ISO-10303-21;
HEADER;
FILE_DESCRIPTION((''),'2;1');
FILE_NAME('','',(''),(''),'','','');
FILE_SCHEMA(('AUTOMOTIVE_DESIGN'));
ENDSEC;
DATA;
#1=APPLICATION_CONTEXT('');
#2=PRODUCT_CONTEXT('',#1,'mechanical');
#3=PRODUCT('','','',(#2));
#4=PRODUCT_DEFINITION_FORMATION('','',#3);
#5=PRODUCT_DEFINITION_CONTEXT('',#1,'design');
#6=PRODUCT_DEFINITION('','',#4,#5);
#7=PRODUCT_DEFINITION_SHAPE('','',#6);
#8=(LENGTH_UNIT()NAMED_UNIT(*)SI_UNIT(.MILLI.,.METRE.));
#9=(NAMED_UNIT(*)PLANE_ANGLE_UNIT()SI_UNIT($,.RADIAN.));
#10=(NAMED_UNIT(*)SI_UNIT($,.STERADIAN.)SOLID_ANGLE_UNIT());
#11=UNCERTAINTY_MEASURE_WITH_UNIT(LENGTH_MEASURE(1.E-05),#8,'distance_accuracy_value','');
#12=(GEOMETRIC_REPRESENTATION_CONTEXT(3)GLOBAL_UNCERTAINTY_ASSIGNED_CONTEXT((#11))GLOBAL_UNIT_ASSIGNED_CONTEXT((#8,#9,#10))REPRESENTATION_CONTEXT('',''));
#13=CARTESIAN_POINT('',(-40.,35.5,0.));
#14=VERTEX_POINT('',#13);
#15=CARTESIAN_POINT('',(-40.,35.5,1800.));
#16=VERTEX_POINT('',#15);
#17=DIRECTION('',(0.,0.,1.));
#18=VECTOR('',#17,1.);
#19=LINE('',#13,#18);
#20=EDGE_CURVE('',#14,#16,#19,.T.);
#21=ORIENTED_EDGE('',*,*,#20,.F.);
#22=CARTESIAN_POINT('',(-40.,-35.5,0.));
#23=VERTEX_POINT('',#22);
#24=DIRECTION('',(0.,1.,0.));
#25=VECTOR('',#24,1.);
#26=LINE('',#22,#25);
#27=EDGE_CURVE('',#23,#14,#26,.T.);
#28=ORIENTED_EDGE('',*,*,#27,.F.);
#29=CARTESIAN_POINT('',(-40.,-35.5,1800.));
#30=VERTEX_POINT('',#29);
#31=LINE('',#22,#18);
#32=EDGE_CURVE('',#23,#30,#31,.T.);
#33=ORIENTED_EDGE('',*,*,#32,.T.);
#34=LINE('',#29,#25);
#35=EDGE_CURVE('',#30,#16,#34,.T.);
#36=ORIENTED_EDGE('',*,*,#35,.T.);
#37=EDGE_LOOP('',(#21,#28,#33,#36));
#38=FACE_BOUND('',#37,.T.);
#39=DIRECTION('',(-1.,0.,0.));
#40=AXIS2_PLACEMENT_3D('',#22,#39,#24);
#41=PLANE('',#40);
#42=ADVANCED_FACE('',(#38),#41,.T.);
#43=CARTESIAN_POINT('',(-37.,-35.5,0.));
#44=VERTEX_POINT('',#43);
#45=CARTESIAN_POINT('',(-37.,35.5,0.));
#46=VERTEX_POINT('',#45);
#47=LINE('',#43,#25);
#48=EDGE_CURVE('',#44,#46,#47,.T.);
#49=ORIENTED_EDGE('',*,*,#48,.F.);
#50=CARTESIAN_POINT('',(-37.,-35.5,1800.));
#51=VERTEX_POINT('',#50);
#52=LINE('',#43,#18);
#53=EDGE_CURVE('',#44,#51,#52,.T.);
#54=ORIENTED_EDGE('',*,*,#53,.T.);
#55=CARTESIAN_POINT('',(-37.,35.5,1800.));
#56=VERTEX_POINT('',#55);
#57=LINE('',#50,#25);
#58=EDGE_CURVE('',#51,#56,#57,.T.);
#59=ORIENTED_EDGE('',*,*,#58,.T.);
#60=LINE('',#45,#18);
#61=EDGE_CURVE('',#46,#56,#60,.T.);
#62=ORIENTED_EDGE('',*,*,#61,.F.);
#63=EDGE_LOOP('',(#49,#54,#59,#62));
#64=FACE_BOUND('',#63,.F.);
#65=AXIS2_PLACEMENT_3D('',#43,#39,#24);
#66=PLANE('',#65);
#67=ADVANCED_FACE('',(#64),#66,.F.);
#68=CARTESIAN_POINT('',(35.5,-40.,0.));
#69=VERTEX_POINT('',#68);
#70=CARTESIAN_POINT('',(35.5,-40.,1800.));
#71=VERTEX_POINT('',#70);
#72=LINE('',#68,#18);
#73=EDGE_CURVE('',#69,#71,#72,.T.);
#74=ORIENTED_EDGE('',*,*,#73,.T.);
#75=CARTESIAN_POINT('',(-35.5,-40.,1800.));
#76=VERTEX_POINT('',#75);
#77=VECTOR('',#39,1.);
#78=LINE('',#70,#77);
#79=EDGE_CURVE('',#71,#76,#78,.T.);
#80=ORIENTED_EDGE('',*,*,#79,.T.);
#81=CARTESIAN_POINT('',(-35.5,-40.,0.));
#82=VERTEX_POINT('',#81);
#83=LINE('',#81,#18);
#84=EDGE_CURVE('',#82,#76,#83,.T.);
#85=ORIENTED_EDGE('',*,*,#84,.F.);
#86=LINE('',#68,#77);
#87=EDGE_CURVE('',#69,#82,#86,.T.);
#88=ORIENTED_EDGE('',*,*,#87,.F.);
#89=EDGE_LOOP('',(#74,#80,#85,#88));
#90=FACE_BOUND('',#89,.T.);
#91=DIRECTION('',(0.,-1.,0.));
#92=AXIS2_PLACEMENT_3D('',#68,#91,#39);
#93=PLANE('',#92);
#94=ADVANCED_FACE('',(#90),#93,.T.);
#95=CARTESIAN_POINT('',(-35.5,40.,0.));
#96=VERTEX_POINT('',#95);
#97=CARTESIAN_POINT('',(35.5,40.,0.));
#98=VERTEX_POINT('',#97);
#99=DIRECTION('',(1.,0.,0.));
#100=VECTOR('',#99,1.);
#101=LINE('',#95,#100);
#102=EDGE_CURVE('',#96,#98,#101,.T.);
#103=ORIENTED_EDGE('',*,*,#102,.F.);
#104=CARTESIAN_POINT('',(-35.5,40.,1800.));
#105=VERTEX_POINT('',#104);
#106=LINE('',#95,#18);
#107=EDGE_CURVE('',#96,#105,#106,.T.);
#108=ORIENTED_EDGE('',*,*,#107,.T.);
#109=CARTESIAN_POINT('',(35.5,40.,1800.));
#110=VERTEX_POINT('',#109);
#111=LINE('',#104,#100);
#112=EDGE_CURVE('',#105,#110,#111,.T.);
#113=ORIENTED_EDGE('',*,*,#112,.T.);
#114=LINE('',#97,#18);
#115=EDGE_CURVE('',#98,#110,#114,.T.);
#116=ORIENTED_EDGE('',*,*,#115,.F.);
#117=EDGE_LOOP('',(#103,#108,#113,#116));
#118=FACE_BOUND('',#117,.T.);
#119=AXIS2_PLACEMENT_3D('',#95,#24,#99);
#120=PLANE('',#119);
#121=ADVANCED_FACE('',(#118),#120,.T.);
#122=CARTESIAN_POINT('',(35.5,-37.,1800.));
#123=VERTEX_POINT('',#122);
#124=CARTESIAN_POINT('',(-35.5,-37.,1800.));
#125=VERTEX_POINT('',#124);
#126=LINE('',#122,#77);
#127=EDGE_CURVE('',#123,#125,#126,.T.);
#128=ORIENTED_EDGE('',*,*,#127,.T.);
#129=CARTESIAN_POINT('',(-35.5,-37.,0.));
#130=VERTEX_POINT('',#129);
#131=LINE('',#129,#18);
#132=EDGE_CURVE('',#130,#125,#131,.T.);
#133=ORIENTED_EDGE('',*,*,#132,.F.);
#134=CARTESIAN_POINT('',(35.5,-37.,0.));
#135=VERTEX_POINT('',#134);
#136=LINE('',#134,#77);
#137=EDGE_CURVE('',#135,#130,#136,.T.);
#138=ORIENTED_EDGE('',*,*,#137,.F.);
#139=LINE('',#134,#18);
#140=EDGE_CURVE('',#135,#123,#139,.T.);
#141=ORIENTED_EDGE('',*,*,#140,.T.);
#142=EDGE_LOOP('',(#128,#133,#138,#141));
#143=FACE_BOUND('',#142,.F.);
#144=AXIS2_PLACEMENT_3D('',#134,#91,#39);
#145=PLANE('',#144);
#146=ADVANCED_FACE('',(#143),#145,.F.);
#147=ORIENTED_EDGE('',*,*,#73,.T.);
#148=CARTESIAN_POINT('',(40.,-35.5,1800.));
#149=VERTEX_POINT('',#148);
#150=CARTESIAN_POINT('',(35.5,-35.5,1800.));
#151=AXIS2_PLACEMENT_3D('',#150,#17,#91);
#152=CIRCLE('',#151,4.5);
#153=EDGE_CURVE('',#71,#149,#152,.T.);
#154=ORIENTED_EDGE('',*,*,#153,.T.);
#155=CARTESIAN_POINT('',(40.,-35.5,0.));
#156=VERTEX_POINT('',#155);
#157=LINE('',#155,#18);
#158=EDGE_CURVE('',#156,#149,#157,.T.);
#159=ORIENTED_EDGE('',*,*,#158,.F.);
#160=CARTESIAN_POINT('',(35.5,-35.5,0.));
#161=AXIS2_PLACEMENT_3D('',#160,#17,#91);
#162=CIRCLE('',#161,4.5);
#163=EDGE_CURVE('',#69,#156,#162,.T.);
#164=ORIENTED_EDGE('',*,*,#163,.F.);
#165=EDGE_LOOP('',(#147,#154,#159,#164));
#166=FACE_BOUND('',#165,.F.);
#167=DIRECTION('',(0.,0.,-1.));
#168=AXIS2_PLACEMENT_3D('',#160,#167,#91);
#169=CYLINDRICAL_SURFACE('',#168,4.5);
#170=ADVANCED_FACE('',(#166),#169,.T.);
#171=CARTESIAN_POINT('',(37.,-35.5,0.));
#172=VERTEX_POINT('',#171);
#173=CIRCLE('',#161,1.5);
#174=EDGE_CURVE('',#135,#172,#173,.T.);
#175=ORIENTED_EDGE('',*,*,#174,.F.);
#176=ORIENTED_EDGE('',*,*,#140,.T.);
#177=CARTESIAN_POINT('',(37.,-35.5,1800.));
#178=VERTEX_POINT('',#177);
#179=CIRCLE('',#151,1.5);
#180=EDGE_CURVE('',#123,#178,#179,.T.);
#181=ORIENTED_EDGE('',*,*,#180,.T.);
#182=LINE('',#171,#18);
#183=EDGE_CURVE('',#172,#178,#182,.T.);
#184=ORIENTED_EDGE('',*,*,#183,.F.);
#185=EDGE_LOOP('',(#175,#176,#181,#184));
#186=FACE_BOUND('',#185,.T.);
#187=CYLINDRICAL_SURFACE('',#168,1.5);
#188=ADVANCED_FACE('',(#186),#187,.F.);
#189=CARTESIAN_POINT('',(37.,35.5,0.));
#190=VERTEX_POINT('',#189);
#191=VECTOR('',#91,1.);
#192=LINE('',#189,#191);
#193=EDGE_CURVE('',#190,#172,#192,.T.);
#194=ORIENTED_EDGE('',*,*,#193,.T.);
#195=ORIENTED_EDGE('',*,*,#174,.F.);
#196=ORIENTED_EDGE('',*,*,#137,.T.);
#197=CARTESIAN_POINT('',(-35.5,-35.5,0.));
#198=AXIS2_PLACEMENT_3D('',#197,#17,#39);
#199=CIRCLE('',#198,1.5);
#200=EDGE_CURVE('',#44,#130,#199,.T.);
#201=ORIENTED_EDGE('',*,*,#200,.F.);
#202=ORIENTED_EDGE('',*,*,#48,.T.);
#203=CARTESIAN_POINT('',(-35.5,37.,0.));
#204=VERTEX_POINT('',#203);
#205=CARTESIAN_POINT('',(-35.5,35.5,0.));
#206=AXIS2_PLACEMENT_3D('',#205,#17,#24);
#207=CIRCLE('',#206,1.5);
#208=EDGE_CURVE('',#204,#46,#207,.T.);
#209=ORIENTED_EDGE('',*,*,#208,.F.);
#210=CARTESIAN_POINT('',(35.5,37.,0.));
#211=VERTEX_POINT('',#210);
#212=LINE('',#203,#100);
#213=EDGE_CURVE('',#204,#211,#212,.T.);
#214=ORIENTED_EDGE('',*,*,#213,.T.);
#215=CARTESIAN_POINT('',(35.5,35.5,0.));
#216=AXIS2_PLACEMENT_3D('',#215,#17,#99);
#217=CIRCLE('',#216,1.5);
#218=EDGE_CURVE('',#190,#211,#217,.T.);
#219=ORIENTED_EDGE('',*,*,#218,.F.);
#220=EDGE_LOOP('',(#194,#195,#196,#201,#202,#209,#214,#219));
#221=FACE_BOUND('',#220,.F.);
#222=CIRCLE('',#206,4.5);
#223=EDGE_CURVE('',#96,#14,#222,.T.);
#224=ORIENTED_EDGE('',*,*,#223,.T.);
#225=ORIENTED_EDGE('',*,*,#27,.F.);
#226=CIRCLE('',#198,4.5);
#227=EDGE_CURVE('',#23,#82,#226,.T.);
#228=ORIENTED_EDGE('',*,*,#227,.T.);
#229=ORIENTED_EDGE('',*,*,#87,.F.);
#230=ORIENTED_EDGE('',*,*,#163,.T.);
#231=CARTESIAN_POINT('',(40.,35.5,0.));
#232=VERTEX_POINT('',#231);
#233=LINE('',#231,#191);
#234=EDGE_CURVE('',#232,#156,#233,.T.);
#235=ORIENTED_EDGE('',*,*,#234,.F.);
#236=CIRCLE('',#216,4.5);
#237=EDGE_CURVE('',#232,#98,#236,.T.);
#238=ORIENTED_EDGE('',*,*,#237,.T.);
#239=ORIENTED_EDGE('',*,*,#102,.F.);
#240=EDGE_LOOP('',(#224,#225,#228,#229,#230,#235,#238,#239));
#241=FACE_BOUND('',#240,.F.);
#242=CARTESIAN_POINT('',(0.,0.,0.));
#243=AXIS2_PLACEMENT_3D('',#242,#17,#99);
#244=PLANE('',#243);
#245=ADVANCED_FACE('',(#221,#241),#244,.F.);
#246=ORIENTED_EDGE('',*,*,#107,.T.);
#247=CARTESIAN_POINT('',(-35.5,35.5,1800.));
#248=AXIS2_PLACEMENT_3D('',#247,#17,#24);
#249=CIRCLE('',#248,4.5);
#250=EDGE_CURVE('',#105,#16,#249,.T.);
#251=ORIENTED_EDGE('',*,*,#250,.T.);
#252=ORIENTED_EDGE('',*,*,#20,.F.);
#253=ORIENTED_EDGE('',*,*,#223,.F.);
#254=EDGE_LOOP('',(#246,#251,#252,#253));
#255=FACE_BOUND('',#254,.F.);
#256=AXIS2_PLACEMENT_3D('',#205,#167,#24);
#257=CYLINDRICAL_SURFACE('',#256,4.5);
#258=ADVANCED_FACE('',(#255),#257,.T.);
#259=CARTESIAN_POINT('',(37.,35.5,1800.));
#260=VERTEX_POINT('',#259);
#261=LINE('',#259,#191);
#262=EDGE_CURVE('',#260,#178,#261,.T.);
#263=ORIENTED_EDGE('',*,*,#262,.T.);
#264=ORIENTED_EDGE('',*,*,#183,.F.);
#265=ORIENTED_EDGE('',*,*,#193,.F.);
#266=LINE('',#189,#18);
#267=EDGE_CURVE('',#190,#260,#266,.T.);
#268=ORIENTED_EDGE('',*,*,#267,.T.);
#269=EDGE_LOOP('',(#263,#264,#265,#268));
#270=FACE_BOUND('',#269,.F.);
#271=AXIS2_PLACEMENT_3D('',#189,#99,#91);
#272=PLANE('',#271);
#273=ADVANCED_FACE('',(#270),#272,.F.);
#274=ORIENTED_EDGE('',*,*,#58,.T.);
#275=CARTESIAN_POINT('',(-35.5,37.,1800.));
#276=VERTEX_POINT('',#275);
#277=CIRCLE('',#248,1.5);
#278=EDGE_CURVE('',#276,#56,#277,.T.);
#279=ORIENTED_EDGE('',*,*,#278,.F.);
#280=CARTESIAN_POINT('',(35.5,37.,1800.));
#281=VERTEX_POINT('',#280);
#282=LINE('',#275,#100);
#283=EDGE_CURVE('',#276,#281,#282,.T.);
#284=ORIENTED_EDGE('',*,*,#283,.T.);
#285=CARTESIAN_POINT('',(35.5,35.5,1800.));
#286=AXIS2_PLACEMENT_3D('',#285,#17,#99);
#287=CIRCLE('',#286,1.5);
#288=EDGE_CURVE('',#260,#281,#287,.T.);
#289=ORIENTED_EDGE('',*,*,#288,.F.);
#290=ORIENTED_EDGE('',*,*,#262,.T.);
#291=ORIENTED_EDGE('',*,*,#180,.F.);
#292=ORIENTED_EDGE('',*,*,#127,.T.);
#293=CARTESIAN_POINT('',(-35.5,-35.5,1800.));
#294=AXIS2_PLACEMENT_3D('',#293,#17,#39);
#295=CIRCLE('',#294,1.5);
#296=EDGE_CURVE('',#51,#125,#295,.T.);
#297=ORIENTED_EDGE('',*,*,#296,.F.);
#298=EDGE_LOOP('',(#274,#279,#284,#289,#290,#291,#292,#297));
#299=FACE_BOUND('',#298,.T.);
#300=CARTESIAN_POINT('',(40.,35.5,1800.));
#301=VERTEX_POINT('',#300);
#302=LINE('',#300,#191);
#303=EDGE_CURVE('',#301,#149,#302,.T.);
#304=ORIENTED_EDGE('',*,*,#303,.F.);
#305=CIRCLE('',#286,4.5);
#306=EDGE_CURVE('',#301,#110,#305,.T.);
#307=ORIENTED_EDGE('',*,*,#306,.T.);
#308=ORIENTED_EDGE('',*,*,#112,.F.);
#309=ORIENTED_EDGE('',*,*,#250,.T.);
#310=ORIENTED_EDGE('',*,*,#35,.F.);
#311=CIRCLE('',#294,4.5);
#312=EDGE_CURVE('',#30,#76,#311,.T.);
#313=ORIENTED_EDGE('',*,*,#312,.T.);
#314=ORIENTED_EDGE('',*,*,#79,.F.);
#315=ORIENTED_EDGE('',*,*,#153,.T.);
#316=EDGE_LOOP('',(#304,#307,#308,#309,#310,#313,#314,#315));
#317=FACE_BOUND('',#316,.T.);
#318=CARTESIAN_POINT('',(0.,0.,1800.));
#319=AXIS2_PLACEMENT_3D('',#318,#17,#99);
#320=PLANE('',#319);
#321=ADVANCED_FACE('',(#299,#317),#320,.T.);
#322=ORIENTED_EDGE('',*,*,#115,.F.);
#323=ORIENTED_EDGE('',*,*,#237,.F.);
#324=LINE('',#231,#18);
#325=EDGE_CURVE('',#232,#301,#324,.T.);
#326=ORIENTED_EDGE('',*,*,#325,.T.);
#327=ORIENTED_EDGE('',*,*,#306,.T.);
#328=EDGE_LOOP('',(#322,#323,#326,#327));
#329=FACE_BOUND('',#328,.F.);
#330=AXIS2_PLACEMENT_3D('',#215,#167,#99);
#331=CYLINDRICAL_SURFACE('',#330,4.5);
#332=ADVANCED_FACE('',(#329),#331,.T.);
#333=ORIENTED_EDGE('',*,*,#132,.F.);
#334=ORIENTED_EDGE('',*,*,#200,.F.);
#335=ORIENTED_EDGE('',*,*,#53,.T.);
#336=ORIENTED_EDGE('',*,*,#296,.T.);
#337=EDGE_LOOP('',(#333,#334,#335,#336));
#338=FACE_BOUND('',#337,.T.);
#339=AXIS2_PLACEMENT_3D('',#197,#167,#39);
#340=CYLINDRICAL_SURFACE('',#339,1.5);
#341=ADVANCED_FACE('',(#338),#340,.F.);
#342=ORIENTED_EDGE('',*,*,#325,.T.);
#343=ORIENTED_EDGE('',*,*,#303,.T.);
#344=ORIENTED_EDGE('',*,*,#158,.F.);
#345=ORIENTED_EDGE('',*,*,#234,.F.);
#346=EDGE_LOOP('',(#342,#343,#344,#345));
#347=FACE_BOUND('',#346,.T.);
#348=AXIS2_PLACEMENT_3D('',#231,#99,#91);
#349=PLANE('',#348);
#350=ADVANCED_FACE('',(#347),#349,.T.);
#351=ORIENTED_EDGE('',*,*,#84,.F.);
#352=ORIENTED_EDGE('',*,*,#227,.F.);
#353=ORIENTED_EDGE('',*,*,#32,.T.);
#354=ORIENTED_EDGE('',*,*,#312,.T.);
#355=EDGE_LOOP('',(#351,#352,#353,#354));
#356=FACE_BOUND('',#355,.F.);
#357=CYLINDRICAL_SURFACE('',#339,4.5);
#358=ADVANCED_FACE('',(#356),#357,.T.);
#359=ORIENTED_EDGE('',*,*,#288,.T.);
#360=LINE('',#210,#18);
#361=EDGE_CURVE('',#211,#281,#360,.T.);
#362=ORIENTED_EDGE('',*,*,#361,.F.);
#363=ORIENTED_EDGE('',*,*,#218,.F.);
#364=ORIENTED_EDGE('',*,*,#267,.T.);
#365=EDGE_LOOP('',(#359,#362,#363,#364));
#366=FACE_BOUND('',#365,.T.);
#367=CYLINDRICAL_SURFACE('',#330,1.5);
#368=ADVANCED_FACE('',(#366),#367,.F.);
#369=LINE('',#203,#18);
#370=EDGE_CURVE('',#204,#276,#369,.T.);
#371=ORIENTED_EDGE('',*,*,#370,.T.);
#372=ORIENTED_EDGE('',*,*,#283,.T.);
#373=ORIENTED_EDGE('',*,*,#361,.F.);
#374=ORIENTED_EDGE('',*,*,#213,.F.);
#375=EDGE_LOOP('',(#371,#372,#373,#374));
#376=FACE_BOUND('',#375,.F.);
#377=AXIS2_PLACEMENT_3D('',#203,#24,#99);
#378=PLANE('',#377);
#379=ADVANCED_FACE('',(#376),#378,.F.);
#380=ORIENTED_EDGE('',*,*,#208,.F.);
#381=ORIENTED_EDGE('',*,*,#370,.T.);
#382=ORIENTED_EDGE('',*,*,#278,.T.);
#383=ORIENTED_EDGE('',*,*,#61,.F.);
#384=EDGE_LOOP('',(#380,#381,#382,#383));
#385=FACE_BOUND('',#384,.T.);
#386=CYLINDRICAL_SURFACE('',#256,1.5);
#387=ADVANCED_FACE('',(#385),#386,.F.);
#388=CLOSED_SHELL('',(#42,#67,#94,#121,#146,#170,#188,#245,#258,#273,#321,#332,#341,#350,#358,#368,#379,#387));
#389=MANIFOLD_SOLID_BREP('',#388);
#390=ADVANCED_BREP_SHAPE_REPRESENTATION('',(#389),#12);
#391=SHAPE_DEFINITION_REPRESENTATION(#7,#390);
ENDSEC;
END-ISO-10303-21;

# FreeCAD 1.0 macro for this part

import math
import FreeCAD as App
import Part
import Sketcher
from FreeCAD import Vector

doc = App.newDocument("Part")
body = doc.addObject("PartDesign::Body", "Body")

# Sketch on XY plane
sketch1 = body.newObject("Sketcher::SketchObject", "Sketch")
sketch1.AttachmentSupport = (doc.getObject("XY_Plane"), [""])
sketch1.MapMode = "FlatFace"
sketch1.addGeometry(Part.LineSegment(Vector(-40, 35.5, 0), Vector(-40, -35.5, 0)), False)
sketch1.addGeometry(Part.ArcOfCircle(Part.Circle(Vector(-35.5, -35.5, 0), Vector(0, 0, 1), 4.5), math.radians(180), math.radians(270)), False)
sketch1.addGeometry(Part.LineSegment(Vector(-35.5, -40, 0), Vector(35.5, -40, 0)), False)
sketch1.addGeometry(Part.ArcOfCircle(Part.Circle(Vector(35.5, -35.5, 0), Vector(0, 0, 1), 4.5), math.radians(-90), math.radians(0)), False)
sketch1.addGeometry(Part.LineSegment(Vector(40, -35.5, 0), Vector(40, 35.5, 0)), False)
sketch1.addGeometry(Part.ArcOfCircle(Part.Circle(Vector(35.5, 35.5, 0), Vector(0, 0, 1), 4.5), math.radians(0), math.radians(90)), False)
sketch1.addGeometry(Part.LineSegment(Vector(35.5, 40, 0), Vector(-35.5, 40, 0)), False)
sketch1.addGeometry(Part.ArcOfCircle(Part.Circle(Vector(-35.5, 35.5, 0), Vector(0, 0, 1), 4.5), math.radians(90), math.radians(180)), False)
sketch1.addGeometry(Part.ArcOfCircle(Part.Circle(Vector(-35.5, 35.5, 0), Vector(0, 0, 1), 1.5), math.radians(90), math.radians(180)), False)
sketch1.addGeometry(Part.LineSegment(Vector(-35.5, 37, 0), Vector(35.5, 37, 0)), False)
sketch1.addGeometry(Part.ArcOfCircle(Part.Circle(Vector(35.5, 35.5, 0), Vector(0, 0, 1), 1.5), math.radians(0), math.radians(90)), False)
sketch1.addGeometry(Part.LineSegment(Vector(37, 35.5, 0), Vector(37, -35.5, 0)), False)
sketch1.addGeometry(Part.ArcOfCircle(Part.Circle(Vector(35.5, -35.5, 0), Vector(0, 0, 1), 1.5), math.radians(-90), math.radians(0)), False)
sketch1.addGeometry(Part.LineSegment(Vector(35.5, -37, 0), Vector(-35.5, -37, 0)), False)
sketch1.addGeometry(Part.ArcOfCircle(Part.Circle(Vector(-35.5, -35.5, 0), Vector(0, 0, 1), 1.5), math.radians(180), math.radians(270)), False)
sketch1.addGeometry(Part.LineSegment(Vector(-37, -35.5, 0), Vector(-37, 35.5, 0)), False)
sketch1.addConstraint(Sketcher.Constraint("Tangent", 0, 2, 1, 1))
sketch1.addConstraint(Sketcher.Constraint("Tangent", 1, 2, 2, 1))
sketch1.addConstraint(Sketcher.Constraint("Tangent", 2, 2, 3, 1))
sketch1.addConstraint(Sketcher.Constraint("Tangent", 3, 2, 4, 1))
sketch1.addConstraint(Sketcher.Constraint("Tangent", 4, 2, 5, 1))
sketch1.addConstraint(Sketcher.Constraint("Tangent", 5, 2, 6, 1))
sketch1.addConstraint(Sketcher.Constraint("Tangent", 6, 2, 7, 1))
sketch1.addConstraint(Sketcher.Constraint("Tangent", 7, 2, 0, 1))
sketch1.addConstraint(Sketcher.Constraint("Tangent", 8, 1, 9, 1))
sketch1.addConstraint(Sketcher.Constraint("Tangent", 9, 2, 10, 2))
sketch1.addConstraint(Sketcher.Constraint("Tangent", 10, 1, 11, 1))
sketch1.addConstraint(Sketcher.Constraint("Tangent", 11, 2, 12, 2))
sketch1.addConstraint(Sketcher.Constraint("Tangent", 12, 1, 13, 1))
sketch1.addConstraint(Sketcher.Constraint("Tangent", 13, 2, 14, 2))
sketch1.addConstraint(Sketcher.Constraint("Tangent", 14, 1, 15, 1))
sketch1.addConstraint(Sketcher.Constraint("Tangent", 15, 2, 8, 2))
sketch1.addConstraint(Sketcher.Constraint("Vertical", 0))
sketch1.addConstraint(Sketcher.Constraint("Horizontal", 2))
sketch1.addConstraint(Sketcher.Constraint("Vertical", 4))
sketch1.addConstraint(Sketcher.Constraint("Horizontal", 6))
sketch1.addConstraint(Sketcher.Constraint("Horizontal", 9))
sketch1.addConstraint(Sketcher.Constraint("Vertical", 11))
sketch1.addConstraint(Sketcher.Constraint("Horizontal", 13))
sketch1.addConstraint(Sketcher.Constraint("Vertical", 15))
sketch1.addConstraint(Sketcher.Constraint("Coincident", 8, 3, 7, 3))
sketch1.addConstraint(Sketcher.Constraint("Coincident", 10, 3, 5, 3))
sketch1.addConstraint(Sketcher.Constraint("Coincident", 12, 3, 3, 3))
sketch1.addConstraint(Sketcher.Constraint("Equal", 1, 3))
sketch1.addConstraint(Sketcher.Constraint("Equal", 3, 5))
sketch1.addConstraint(Sketcher.Constraint("Equal", 5, 7))
sketch1.addConstraint(Sketcher.Constraint("Equal", 12, 14))
sketch1.addConstraint(Sketcher.Constraint("Symmetric", 1, 3, 5, 3, -1, 1))
sketch1.addConstraint(Sketcher.Constraint("Equal", 13, 0))
sketch1.addConstraint(Sketcher.Constraint("Radius", 1, 4.5))
sketch1.addConstraint(Sketcher.Constraint("Radius", 8, 1.5))
sketch1.addConstraint(Sketcher.Constraint("DistanceX", 0, 2, -1, 1, 40.0))
pad1 = body.newObject("PartDesign::Pad", "Pad")
pad1.Profile = sketch1
pad1.Length = 1800

doc.recompute()
